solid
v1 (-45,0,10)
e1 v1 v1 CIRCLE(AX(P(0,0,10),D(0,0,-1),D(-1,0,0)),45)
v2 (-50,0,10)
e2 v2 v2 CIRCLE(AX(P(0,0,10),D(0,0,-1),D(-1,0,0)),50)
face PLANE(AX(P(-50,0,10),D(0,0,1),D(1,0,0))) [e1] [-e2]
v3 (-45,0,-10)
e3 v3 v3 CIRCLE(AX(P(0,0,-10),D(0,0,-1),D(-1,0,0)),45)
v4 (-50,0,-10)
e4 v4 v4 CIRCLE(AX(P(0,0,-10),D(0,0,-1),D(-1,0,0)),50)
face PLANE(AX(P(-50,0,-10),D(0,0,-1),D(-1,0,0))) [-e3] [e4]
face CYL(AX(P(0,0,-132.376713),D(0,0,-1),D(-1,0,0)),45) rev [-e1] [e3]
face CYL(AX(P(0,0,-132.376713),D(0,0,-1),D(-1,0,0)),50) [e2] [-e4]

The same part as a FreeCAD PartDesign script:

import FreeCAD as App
import Part
import Sketcher


def add_polygon(sketch, points):
    """Adds a closed chain of lines whose ends are joined by coincident constraints."""
    first, n = sketch.GeometryCount, len(points)
    for a, b in zip(points, points[1:] + points[:1]):
        sketch.addGeometry(Part.LineSegment(App.Vector(*a, 0), App.Vector(*b, 0)), False)
    for i in range(n):
        sketch.addConstraint(Sketcher.Constraint("Coincident", first + i, 2, first + (i + 1) % n, 1))

doc = App.newDocument("Part")
body = doc.addObject("PartDesign::Body", "Body")

# Sketch on XZ plane
sketch1 = doc.addObject("Sketcher::SketchObject", "Sketch")
body.addObject(sketch1)
sketch1.AttachmentSupport = (doc.XZ_Plane, [""])
sketch1.MapMode = "FlatFace"
add_polygon(sketch1, [(-50, -10), (-50, 10), (-45, 10), (-45, -10)])  # lines 0-3
sketch1.addConstraint(Sketcher.Constraint("Vertical", 0))
sketch1.addConstraint(Sketcher.Constraint("Horizontal", 1))
sketch1.addConstraint(Sketcher.Constraint("Vertical", 2))
sketch1.addConstraint(Sketcher.Constraint("Horizontal", 3))
sketch1.addConstraint(Sketcher.Constraint("DistanceX", 1, 1, 1, 2, 5.0))
sketch1.addConstraint(Sketcher.Constraint("DistanceY", 0, 1, 0, 2, 20.0))
sketch1.addConstraint(Sketcher.Constraint("DistanceX", 0, 2, -1, 1, 50.0))
sketch1.addConstraint(Sketcher.Constraint("DistanceY", -1, 1, 0, 2, 10.0))
revolution = doc.addObject("PartDesign::Revolution", "Revolution")
body.addObject(revolution)
revolution.Profile = sketch1
revolution.ReferenceAxis = (sketch1, ["V_Axis"])
revolution.Angle = 360

doc.recompute()
